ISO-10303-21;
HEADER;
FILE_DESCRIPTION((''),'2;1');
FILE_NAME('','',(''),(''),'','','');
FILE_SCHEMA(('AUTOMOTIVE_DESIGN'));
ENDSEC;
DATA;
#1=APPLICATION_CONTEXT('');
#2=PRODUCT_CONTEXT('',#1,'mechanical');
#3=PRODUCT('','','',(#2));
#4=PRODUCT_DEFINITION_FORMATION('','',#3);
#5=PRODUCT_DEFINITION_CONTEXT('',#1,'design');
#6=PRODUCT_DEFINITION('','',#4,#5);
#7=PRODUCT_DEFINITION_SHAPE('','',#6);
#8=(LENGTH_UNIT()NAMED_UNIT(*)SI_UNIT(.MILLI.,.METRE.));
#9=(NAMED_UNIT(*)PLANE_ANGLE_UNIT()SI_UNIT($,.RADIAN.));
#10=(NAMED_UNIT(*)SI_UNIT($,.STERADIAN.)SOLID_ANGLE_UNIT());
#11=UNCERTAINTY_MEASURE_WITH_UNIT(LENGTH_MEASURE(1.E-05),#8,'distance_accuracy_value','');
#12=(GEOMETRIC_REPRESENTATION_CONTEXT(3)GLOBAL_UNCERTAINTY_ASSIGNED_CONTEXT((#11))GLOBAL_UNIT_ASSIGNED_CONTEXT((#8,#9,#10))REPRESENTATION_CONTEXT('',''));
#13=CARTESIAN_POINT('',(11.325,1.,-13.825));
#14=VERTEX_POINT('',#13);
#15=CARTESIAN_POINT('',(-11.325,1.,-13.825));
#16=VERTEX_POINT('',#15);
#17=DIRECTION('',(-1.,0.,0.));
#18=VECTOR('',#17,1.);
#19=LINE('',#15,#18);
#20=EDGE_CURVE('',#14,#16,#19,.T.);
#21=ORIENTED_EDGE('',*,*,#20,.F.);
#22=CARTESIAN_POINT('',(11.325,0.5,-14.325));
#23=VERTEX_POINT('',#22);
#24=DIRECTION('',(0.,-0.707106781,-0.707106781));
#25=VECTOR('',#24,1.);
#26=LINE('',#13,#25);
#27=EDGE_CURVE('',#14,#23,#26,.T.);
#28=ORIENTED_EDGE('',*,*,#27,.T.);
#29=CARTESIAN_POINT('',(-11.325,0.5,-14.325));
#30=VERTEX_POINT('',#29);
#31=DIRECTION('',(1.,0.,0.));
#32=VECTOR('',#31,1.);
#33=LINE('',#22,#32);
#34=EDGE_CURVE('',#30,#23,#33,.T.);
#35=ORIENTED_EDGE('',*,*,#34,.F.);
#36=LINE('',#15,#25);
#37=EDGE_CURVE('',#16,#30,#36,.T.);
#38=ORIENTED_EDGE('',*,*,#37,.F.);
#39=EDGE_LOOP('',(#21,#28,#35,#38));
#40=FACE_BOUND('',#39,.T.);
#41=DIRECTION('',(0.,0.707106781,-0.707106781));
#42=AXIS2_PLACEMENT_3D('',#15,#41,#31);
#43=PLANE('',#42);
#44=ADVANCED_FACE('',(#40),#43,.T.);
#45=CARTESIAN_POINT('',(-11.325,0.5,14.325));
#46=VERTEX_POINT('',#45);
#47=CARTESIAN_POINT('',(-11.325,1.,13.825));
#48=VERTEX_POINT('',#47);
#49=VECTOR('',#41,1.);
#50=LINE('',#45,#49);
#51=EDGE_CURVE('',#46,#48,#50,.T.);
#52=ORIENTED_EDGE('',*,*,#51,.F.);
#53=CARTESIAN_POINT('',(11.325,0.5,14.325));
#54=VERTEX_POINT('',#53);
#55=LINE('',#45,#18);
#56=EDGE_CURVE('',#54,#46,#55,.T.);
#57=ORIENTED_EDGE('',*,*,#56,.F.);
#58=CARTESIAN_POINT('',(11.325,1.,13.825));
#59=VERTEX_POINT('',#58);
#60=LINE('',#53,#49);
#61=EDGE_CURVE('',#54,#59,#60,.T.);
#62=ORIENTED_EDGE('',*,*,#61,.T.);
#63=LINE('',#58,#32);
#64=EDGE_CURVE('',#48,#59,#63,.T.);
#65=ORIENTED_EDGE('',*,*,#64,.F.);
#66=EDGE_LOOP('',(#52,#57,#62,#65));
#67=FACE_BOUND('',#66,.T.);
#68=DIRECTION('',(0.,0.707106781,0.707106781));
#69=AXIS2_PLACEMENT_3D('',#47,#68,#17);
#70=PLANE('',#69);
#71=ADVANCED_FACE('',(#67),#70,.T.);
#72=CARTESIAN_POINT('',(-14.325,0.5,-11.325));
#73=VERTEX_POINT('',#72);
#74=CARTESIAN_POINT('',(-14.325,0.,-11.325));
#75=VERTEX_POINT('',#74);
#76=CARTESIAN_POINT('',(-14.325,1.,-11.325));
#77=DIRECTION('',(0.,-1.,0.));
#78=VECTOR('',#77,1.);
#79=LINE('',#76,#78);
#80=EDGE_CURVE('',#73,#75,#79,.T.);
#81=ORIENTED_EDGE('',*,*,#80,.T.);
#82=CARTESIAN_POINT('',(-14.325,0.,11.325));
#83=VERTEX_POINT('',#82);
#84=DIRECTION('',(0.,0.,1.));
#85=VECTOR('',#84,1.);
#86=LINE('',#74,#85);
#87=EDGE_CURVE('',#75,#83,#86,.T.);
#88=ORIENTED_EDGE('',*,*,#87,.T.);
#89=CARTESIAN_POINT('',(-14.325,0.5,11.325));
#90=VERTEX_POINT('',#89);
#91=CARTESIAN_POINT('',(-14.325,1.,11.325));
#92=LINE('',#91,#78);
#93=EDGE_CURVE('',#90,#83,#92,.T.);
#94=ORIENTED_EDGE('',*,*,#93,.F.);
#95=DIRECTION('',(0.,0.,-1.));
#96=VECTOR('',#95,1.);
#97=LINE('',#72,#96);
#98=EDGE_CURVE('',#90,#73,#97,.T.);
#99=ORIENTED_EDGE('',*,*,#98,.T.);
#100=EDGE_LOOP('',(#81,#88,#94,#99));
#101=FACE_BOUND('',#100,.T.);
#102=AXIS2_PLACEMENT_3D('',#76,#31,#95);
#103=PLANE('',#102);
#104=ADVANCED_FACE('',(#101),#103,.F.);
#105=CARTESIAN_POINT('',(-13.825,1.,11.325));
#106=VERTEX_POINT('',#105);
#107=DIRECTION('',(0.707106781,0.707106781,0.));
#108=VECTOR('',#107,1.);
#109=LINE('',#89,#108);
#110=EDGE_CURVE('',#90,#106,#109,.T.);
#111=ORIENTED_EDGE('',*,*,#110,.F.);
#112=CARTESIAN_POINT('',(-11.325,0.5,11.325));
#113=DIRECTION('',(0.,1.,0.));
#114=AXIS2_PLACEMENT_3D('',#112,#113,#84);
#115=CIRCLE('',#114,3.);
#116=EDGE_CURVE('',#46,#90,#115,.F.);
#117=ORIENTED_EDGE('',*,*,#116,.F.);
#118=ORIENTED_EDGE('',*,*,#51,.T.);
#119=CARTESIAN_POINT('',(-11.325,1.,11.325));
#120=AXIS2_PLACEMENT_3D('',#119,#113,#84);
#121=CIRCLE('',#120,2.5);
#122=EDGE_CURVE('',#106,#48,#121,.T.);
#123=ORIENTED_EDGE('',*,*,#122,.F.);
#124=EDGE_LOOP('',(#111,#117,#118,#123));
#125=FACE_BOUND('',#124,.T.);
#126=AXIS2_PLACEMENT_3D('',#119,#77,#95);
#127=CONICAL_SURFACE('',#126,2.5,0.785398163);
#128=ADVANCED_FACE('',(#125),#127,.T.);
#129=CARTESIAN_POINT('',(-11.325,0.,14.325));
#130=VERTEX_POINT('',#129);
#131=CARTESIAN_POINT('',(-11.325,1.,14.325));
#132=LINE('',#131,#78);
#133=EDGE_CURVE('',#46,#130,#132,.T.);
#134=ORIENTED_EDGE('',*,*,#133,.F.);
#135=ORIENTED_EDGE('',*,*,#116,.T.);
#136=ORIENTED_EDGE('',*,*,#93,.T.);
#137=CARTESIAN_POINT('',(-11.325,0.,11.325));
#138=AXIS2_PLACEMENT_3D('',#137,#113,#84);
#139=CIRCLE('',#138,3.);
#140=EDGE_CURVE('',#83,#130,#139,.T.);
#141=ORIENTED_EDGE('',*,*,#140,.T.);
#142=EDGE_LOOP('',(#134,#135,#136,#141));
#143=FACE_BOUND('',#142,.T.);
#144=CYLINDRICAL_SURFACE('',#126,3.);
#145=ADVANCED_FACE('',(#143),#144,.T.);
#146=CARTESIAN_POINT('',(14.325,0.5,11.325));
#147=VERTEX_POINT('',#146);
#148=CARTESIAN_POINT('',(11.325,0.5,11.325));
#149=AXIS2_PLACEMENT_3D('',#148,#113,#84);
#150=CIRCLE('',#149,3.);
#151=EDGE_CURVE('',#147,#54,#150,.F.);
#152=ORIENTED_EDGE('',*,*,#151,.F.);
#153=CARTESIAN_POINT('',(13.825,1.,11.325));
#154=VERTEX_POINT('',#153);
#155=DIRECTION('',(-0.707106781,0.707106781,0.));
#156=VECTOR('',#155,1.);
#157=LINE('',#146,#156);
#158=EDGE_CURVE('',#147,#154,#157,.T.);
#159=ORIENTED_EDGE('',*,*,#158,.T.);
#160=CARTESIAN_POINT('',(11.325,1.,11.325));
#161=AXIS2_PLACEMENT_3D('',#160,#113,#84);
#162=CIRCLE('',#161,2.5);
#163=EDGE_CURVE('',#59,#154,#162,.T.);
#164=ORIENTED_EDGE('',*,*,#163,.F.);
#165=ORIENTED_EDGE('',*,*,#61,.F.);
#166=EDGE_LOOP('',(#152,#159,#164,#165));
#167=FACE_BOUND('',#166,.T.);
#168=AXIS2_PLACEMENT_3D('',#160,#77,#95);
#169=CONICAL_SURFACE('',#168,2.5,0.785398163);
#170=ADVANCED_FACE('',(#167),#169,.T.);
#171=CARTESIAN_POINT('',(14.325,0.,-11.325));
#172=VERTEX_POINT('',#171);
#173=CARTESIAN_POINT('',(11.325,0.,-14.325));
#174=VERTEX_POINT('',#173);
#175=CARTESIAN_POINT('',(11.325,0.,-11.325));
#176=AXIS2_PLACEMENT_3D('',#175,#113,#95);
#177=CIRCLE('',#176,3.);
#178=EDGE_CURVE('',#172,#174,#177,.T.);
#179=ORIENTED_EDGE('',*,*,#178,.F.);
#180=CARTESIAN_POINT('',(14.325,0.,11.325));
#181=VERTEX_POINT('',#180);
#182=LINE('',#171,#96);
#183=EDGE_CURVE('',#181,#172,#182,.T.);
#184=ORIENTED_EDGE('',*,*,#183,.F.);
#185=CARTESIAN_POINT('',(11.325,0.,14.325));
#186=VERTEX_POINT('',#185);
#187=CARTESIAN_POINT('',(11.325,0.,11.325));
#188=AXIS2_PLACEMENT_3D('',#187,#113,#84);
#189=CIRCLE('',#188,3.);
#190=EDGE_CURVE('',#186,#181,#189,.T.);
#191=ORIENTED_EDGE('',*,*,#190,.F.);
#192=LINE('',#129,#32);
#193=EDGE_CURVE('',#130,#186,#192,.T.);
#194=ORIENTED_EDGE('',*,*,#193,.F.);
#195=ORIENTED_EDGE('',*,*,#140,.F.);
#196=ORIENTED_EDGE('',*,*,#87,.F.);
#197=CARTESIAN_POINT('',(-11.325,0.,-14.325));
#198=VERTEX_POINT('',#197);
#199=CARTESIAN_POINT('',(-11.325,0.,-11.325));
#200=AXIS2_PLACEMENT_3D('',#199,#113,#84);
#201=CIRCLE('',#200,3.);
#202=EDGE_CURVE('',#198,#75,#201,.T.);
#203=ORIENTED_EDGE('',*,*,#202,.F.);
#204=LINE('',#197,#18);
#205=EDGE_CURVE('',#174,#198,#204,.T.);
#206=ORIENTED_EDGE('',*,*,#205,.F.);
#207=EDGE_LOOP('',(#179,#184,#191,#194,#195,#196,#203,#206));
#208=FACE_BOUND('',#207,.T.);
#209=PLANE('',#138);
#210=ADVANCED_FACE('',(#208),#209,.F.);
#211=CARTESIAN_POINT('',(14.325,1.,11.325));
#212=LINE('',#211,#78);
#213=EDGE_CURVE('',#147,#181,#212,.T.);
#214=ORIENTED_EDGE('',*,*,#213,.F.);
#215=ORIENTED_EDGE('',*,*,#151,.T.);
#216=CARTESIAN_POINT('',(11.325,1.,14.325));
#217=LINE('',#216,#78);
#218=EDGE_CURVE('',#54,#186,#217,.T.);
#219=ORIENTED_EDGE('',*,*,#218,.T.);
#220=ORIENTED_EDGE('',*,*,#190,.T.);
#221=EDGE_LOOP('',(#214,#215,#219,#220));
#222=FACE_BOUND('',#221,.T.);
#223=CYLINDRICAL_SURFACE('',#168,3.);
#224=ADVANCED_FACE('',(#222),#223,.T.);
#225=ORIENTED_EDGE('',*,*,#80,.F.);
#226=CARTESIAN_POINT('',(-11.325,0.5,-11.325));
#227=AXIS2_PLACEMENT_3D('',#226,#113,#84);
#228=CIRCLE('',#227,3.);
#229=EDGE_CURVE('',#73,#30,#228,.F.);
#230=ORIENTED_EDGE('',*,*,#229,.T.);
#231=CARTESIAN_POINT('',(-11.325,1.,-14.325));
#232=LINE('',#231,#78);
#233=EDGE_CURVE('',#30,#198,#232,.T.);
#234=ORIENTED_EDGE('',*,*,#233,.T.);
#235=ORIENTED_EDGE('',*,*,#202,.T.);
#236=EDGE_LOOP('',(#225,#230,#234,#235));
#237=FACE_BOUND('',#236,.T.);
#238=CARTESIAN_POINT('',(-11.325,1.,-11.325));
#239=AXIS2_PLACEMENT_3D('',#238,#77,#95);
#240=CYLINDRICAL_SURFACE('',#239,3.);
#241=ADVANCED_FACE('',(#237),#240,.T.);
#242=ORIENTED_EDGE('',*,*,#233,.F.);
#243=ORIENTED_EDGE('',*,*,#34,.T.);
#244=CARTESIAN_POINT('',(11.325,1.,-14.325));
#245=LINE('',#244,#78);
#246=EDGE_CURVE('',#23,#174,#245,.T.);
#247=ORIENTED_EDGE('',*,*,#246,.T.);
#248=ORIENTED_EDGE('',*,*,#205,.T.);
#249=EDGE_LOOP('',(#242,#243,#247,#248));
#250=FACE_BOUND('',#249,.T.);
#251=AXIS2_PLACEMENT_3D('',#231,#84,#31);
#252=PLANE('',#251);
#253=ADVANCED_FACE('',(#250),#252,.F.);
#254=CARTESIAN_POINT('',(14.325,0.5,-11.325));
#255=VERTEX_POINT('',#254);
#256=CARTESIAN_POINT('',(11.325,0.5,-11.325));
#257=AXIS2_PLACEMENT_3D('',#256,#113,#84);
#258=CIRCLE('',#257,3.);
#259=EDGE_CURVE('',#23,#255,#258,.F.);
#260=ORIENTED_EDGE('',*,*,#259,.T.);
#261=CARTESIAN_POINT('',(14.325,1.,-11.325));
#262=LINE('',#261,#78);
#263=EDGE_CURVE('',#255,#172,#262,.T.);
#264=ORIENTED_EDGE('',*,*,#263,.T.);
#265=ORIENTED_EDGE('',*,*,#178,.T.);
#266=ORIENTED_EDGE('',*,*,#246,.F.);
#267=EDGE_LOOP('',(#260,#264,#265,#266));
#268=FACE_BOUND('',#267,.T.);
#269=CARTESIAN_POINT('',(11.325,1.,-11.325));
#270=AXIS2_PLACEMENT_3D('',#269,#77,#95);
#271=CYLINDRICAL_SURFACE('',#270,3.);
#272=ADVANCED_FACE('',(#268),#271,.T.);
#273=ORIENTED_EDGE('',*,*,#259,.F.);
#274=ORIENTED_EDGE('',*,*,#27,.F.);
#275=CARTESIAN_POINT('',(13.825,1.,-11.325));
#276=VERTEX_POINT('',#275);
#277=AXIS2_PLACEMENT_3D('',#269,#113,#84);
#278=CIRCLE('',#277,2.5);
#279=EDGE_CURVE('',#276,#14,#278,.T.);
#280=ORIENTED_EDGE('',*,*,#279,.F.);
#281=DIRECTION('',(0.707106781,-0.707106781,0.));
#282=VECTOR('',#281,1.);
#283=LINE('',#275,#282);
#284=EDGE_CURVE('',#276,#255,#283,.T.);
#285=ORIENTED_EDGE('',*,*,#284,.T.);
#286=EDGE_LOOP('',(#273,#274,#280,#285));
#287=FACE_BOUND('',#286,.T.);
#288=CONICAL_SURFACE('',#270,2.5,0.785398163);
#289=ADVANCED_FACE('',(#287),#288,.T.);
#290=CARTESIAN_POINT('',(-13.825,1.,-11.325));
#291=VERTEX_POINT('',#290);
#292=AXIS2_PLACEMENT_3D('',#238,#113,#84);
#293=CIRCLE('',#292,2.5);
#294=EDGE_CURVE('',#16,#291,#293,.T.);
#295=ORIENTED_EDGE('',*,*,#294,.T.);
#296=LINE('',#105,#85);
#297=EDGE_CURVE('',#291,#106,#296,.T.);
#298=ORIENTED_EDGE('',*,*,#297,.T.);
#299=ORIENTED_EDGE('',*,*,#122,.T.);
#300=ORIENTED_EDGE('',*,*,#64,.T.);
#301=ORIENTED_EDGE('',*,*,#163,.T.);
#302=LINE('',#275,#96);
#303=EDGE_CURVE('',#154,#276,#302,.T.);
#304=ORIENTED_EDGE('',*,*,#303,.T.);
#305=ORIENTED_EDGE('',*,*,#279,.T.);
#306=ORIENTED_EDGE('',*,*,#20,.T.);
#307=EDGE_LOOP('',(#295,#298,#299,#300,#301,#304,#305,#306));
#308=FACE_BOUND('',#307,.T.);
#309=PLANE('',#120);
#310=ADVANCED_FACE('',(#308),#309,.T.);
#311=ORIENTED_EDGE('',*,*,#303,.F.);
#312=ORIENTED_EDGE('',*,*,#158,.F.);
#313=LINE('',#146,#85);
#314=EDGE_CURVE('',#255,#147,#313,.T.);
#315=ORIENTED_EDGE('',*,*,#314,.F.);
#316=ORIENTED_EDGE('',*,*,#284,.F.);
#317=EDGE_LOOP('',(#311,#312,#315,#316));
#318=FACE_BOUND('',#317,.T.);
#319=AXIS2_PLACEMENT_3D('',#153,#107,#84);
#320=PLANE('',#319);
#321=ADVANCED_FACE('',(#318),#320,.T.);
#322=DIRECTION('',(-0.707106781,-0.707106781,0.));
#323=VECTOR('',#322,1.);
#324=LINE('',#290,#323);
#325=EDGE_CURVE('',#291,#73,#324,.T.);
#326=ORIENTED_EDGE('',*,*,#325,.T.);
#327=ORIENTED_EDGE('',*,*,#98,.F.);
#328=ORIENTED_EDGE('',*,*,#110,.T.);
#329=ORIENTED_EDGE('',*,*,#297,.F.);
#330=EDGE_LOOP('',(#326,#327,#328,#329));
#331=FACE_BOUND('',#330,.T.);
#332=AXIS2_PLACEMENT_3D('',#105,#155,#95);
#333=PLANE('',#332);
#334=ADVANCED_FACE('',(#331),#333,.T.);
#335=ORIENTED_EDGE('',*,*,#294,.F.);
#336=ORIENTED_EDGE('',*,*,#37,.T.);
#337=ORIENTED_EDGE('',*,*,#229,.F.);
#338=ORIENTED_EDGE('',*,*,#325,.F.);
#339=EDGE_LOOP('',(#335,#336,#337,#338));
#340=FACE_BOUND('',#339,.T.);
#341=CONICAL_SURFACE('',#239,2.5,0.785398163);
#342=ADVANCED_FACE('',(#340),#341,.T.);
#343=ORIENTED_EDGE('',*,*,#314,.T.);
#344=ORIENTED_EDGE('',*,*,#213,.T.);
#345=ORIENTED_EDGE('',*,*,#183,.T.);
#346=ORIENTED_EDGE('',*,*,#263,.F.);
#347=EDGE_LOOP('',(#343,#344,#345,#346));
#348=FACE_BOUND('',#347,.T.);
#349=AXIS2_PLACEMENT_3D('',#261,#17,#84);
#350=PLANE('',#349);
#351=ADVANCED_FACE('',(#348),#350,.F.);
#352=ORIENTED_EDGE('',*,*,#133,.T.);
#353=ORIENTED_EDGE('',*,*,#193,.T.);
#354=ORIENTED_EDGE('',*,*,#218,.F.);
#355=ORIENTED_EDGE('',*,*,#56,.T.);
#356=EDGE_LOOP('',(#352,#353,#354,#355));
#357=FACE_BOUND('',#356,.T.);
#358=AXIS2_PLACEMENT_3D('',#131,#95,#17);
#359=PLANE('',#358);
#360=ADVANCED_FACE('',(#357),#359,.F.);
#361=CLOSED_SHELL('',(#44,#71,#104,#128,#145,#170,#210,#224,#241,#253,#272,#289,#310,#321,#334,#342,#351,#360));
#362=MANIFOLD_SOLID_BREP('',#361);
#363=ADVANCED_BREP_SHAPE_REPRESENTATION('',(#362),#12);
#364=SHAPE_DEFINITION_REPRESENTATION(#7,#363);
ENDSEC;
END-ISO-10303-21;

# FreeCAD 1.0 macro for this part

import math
import FreeCAD as App
import Part
import Sketcher


def edges_at(feature, points):
    """Names of the edges that pass closest to the given points."""
    edges = feature.Shape.Edges
    near = lambda p: min(range(len(edges)), key=lambda i: edges[i].distToShape(Part.Vertex(*p))[0])
    return sorted({f"Edge{near(p) + 1}" for p in points})

doc = App.newDocument("Part")
body = doc.addObject("PartDesign::Body", "Body")

sketch1 = body.newObject("Sketcher::SketchObject", "Sketch")
sketch1.AttachmentSupport = (doc.getObject("XZ_Plane"), [""])
sketch1.MapMode = "FlatFace"
sketch1.addGeometry([
    Part.LineSegment(App.Vector(11.325, -14.325, 0), App.Vector(-11.325, -14.325, 0)),
    Part.ArcOfCircle(Part.Circle(App.Vector(-11.325, -11.325, 0), App.Vector(0, 0, 1), 3), math.radians(180), math.radians(270)),
    Part.LineSegment(App.Vector(-14.325, -11.325, 0), App.Vector(-14.325, 11.325, 0)),
    Part.ArcOfCircle(Part.Circle(App.Vector(-11.325, 11.325, 0), App.Vector(0, 0, 1), 3), math.radians(90), math.radians(180)),
    Part.LineSegment(App.Vector(-11.325, 14.325, 0), App.Vector(11.325, 14.325, 0)),
    Part.ArcOfCircle(Part.Circle(App.Vector(11.325, 11.325, 0), App.Vector(0, 0, 1), 3), math.radians(0), math.radians(90)),
    Part.LineSegment(App.Vector(14.325, 11.325, 0), App.Vector(14.325, -11.325, 0)),
    Part.ArcOfCircle(Part.Circle(App.Vector(11.325, -11.325, 0), App.Vector(0, 0, 1), 3), math.radians(-90), math.radians(0)),
], False)
sketch1.addConstraint([
    Sketcher.Constraint("Tangent", 0, 2, 1, 2),
    Sketcher.Constraint("Tangent", 1, 1, 2, 1),
    Sketcher.Constraint("Tangent", 2, 2, 3, 2),
    Sketcher.Constraint("Tangent", 3, 1, 4, 1),
    Sketcher.Constraint("Tangent", 4, 2, 5, 2),
    Sketcher.Constraint("Tangent", 5, 1, 6, 1),
    Sketcher.Constraint("Tangent", 6, 2, 7, 2),
    Sketcher.Constraint("Tangent", 7, 1, 0, 1),
    Sketcher.Constraint("Horizontal", 0),
    Sketcher.Constraint("Vertical", 2),
    Sketcher.Constraint("Horizontal", 4),
    Sketcher.Constraint("Vertical", 6),
    Sketcher.Constraint("Equal", 1, 3),
    Sketcher.Constraint("Equal", 3, 5),
    Sketcher.Constraint("Equal", 5, 7),
    Sketcher.Constraint("Symmetric", 1, 3, 5, 3, -1, 1),
    Sketcher.Constraint("Equal", 4, 2),
    Sketcher.Constraint("Radius", 1, 3.0),
    Sketcher.Constraint("DistanceX", 0, 2, 0, 1, 22.65),
])
pad1 = body.newObject("PartDesign::Pad", "Pad")
pad1.Profile = sketch1
pad1.Length = 1
pad1.Reversed = True
doc.recompute()

chamfer = body.newObject("PartDesign::Chamfer", "Chamfer")
chamfer.Base = (pad1, edges_at(pad1, [
    (13.446, 1, 13.446),
    (14.325, 1, 0),
    (13.446, 1, -13.446),
    (0, 1, -14.325),
    (-13.446, 1, -13.446),
    (-14.325, 1, 0),
    (-13.446, 1, 13.446),
    (0, 1, 14.325),
]))
chamfer.Size = 0.5

doc.recompute()
